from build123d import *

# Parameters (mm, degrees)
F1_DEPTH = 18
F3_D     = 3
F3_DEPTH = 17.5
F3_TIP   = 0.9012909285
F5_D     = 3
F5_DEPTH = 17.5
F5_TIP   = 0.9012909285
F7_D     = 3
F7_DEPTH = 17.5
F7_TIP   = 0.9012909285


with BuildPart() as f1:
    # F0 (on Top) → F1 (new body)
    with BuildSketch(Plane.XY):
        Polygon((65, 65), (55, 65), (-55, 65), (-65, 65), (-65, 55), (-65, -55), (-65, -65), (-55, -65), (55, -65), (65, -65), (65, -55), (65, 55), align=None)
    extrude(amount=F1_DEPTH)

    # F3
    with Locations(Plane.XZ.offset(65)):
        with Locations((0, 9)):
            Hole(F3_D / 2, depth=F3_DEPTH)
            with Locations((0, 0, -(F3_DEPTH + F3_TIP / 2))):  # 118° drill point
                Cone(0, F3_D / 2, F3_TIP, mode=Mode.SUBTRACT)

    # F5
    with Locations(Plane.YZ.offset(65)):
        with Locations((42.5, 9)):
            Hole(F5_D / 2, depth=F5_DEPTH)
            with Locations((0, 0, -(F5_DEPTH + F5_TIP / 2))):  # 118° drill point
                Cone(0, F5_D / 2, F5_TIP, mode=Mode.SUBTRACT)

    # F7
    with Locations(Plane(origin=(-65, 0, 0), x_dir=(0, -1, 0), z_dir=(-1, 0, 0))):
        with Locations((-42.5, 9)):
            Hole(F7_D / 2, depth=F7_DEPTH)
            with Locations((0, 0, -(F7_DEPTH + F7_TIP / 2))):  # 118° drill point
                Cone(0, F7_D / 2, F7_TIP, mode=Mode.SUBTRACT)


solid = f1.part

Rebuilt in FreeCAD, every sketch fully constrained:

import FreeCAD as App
import Part
import Sketcher
Q = App.Units.Quantity


def add_polygon(sketch, points):
    """Adds a closed chain of lines whose ends are joined by coincident constraints."""
    first, n = sketch.GeometryCount, len(points)
    for a, b in zip(points, points[1:] + points[:1]):
        sketch.addGeometry(Part.LineSegment(App.Vector(*a, 0), App.Vector(*b, 0)), False)
    for i in range(n):
        sketch.addConstraint(Sketcher.Constraint("Coincident", first + i, 2, first + (i + 1) % n, 1))

doc = App.newDocument("Part")
body = doc.addObject("PartDesign::Body", "Body")

# Sketch on XY plane
sketch1 = body.newObject("Sketcher::SketchObject", "Sketch")
sketch1.AttachmentSupport = (doc.getObject("XY_Plane"), [""])
sketch1.MapMode = "FlatFace"
add_polygon(sketch1, [(65, 65), (-65, 65), (-65, -65), (65, -65)])  # lines 0-3
sketch1.addConstraint([
    Sketcher.Constraint("Horizontal", 0),
    Sketcher.Constraint("Vertical", 1),
    Sketcher.Constraint("Horizontal", 2),
    Sketcher.Constraint("Vertical", 3),
    Sketcher.Constraint("Symmetric", 0, 2, 2, 2, -1, 1),
    Sketcher.Constraint("Equal", 2, 1),
    Sketcher.Constraint("DistanceX", 0, 2, 0, 1, Q("130 mm")),
])
pad1 = body.newObject("PartDesign::Pad", "Pad")
pad1.Profile = sketch1
pad1.Length = 18

# Sketch on XZ plane
sketch2 = body.newObject("Sketcher::SketchObject", "Sketch001")
sketch2.AttachmentSupport = (doc.getObject("XZ_Plane"), [""])
sketch2.MapMode = "FlatFace"
sketch2.AttachmentOffset = App.Placement(App.Vector(0, 0, 65), App.Rotation())
sketch2.addGeometry(Part.Circle(App.Vector(0, 9, 0), App.Vector(0, 0, 1), 1.5), False)
sketch2.addConstraint([
    Sketcher.Constraint("PointOnObject", 0, 3, -2),
    Sketcher.Constraint("Diameter", 0, Q("3 mm")),
    Sketcher.Constraint("DistanceY", -1, 1, 0, 3, Q("9 mm")),
])
doc.recompute()
hole = body.newObject("PartDesign::Hole", "Hole")
hole.Profile = sketch2
hole.ThreadType = "None"
hole.Diameter = 3
hole.DepthType = "Dimension"
hole.Depth = 17.5
hole.DrillPoint = "Angled"
hole.DrillPointAngle = 118

# Sketch on YZ plane
sketch3 = body.newObject("Sketcher::SketchObject", "Sketch002")
sketch3.AttachmentSupport = (doc.getObject("YZ_Plane"), [""])
sketch3.MapMode = "FlatFace"
sketch3.AttachmentOffset = App.Placement(App.Vector(0, 0, 65), App.Rotation())
sketch3.addGeometry(Part.Circle(App.Vector(42.5, 9, 0), App.Vector(0, 0, 1), 1.5), False)
sketch3.addConstraint([
    Sketcher.Constraint("Diameter", 0, Q("3 mm")),
    Sketcher.Constraint("DistanceY", -1, 1, 0, 3, Q("9 mm")),
    Sketcher.Constraint("DistanceX", -1, 1, 0, 3, Q("42.5 mm")),
])
doc.recompute()
hole2 = body.newObject("PartDesign::Hole", "Hole001")
hole2.Profile = sketch3
hole2.ThreadType = "None"
hole2.Diameter = 3
hole2.DepthType = "Dimension"
hole2.Depth = 17.5
hole2.DrillPoint = "Angled"
hole2.DrillPointAngle = 118

# Sketch on YZ plane
sketch4 = body.newObject("Sketcher::SketchObject", "Sketch003")
sketch4.AttachmentSupport = (doc.getObject("YZ_Plane"), [""])
sketch4.MapMode = "FlatFace"
sketch4.AttachmentOffset = App.Placement(App.Vector(0, 0, -65), App.Rotation())
sketch4.addGeometry(Part.Circle(App.Vector(42.5, 9, 0), App.Vector(0, 0, 1), 1.5), False)
sketch4.addConstraint([
    Sketcher.Constraint("Diameter", 0, Q("3 mm")),
    Sketcher.Constraint("DistanceY", -1, 1, 0, 3, Q("9 mm")),
    Sketcher.Constraint("DistanceX", -1, 1, 0, 3, Q("42.5 mm")),
])
doc.recompute()
hole3 = body.newObject("PartDesign::Hole", "Hole002")
hole3.Profile = sketch4
hole3.ThreadType = "None"
hole3.Diameter = 3
hole3.DepthType = "Dimension"
hole3.Depth = 17.5
hole3.DrillPoint = "Angled"
hole3.DrillPointAngle = 118
hole3.Reversed = True

doc.recompute()
